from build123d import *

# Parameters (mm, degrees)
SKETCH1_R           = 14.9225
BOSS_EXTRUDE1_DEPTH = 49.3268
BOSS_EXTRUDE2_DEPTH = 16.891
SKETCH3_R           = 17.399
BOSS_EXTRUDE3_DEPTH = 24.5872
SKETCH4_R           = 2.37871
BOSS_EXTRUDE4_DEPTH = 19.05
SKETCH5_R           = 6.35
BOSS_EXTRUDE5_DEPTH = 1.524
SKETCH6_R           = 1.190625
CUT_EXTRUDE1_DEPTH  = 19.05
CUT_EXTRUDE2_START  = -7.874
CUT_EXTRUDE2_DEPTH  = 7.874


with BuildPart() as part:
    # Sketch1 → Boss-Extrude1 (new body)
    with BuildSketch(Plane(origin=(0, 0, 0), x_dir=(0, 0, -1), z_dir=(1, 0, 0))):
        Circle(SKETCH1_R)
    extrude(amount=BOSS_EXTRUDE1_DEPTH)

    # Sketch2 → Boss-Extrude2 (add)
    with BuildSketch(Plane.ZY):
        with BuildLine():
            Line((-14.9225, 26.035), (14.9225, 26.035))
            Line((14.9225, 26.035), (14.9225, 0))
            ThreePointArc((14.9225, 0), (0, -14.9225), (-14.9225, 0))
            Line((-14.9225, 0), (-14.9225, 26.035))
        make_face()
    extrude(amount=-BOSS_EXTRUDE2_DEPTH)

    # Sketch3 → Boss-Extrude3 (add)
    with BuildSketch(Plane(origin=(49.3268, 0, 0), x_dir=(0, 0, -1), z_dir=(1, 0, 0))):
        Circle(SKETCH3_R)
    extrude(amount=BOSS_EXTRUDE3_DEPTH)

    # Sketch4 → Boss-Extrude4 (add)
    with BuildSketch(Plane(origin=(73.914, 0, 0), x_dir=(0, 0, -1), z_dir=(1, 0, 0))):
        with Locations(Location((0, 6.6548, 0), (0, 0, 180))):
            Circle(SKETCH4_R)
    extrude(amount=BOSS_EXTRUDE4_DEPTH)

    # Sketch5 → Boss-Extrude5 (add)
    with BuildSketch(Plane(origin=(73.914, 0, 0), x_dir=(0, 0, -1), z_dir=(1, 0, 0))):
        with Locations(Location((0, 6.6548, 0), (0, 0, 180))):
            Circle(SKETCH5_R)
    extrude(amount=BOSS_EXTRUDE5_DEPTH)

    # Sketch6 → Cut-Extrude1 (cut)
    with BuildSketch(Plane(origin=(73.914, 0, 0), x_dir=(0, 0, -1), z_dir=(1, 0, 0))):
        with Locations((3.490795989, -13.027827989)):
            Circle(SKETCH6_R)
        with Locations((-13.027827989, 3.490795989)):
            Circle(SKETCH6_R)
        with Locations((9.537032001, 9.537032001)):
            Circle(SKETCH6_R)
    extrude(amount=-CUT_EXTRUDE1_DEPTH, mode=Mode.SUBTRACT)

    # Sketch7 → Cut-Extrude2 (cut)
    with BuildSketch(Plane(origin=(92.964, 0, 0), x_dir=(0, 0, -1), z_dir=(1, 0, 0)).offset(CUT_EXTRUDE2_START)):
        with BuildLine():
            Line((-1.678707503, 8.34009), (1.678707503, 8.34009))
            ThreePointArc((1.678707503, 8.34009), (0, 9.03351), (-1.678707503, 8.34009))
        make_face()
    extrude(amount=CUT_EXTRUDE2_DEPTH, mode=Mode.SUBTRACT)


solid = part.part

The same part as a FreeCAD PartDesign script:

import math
import FreeCAD as App
import Part
import Sketcher

V = App.Vector
Q = App.Units.Quantity

doc = App.newDocument("Part")
body = doc.addObject("PartDesign::Body", "Body")

# Sketch on YZ plane
sketch1 = body.newObject("Sketcher::SketchObject", "Sketch")
sketch1.AttachmentSupport = (doc.getObject("YZ_Plane"), [""])
sketch1.MapMode = "FlatFace"
sketch1.addGeometry(Part.Circle(V(0, 0, 0), V(0, 0, 1), 14.9225), False)
sketch1.addConstraint(Sketcher.Constraint("Coincident", 0, 3, -1, 1))
sketch1.addConstraint(Sketcher.Constraint("Diameter", 0, Q("1.175 in")))
pad1 = body.newObject("PartDesign::Pad", "Pad")
pad1.Profile = sketch1
pad1.Length = Q("1.942 in")

# Sketch on YZ plane
sketch2 = body.newObject("Sketcher::SketchObject", "Sketch001")
sketch2.AttachmentSupport = (doc.getObject("YZ_Plane"), [""])
sketch2.MapMode = "FlatFace"
sketch2.addGeometry(Part.LineSegment(V(26.035, 14.9225, 0), V(26.035, -14.9225, 0)), False)
sketch2.addGeometry(Part.LineSegment(V(26.035, -14.9225, 0), V(0, -14.9225, 0)), False)
sketch2.addGeometry(Part.ArcOfCircle(Part.Circle(V(0, 0, 0), V(0, 0, 1), 14.9225), math.radians(90), math.radians(270)), False)
sketch2.addGeometry(Part.LineSegment(V(0, 14.9225, 0), V(26.035, 14.9225, 0)), False)
sketch2.addConstraint(Sketcher.Constraint("Coincident", 0, 2, 1, 1))
sketch2.addConstraint(Sketcher.Constraint("Tangent", 1, 2, 2, 2))
sketch2.addConstraint(Sketcher.Constraint("Tangent", 2, 1, 3, 1))
sketch2.addConstraint(Sketcher.Constraint("Coincident", 3, 2, 0, 1))
sketch2.addConstraint(Sketcher.Constraint("Vertical", 0))
sketch2.addConstraint(Sketcher.Constraint("Horizontal", 1))
sketch2.addConstraint(Sketcher.Constraint("Horizontal", 3))
sketch2.addConstraint(Sketcher.Constraint("Coincident", 2, 3, -1, 1))
sketch2.addConstraint(Sketcher.Constraint("Radius", 2, Q("0.5875 in")))
sketch2.addConstraint(Sketcher.Constraint("DistanceX", 1, 2, 1, 1, Q("1.025 in")))
pad2 = body.newObject("PartDesign::Pad", "Pad001")
pad2.Profile = sketch2
pad2.Length = Q("0.665 in")

# Sketch on YZ plane
sketch3 = body.newObject("Sketcher::SketchObject", "Sketch002")
sketch3.AttachmentSupport = (doc.getObject("YZ_Plane"), [""])
sketch3.MapMode = "FlatFace"
sketch3.AttachmentOffset = App.Placement(V(0, 0, 1.942 * 25.4), App.Rotation())
sketch3.addGeometry(Part.Circle(V(0, 0, 0), V(0, 0, 1), 17.399), False)
sketch3.addConstraint(Sketcher.Constraint("Coincident", 0, 3, -1, 1))
sketch3.addConstraint(Sketcher.Constraint("Diameter", 0, Q("1.37 in")))
pad3 = body.newObject("PartDesign::Pad", "Pad002")
pad3.Profile = sketch3
pad3.Length = Q("0.968 in")

# Sketch on YZ plane
sketch4 = body.newObject("Sketcher::SketchObject", "Sketch003")
sketch4.AttachmentSupport = (doc.getObject("YZ_Plane"), [""])
sketch4.MapMode = "FlatFace"
sketch4.AttachmentOffset = App.Placement(V(0, 0, 2.91 * 25.4), App.Rotation())
sketch4.addGeometry(Part.Circle(V(6.6548, 0, 0), V(0, 0, 1), 2.37871), False)
sketch4.addConstraint(Sketcher.Constraint("PointOnObject", 0, 3, -1))
sketch4.addConstraint(Sketcher.Constraint("Diameter", 0, Q("0.1873 in")))
sketch4.addConstraint(Sketcher.Constraint("DistanceX", -1, 1, 0, 3, Q("0.262 in")))
pad4 = body.newObject("PartDesign::Pad", "Pad003")
pad4.Profile = sketch4
pad4.Length = Q("0.75 in")

# Sketch on YZ plane
sketch5 = body.newObject("Sketcher::SketchObject", "Sketch004")
sketch5.AttachmentSupport = (doc.getObject("YZ_Plane"), [""])
sketch5.MapMode = "FlatFace"
sketch5.AttachmentOffset = App.Placement(V(0, 0, 2.91 * 25.4), App.Rotation())
sketch5.addGeometry(Part.Circle(V(6.6548, 0, 0), V(0, 0, 1), 6.35), False)
sketch5.addConstraint(Sketcher.Constraint("PointOnObject", 0, 3, -1))
sketch5.addConstraint(Sketcher.Constraint("Diameter", 0, Q("0.5 in")))
sketch5.addConstraint(Sketcher.Constraint("DistanceX", -1, 1, 0, 3, Q("0.262 in")))
pad5 = body.newObject("PartDesign::Pad", "Pad004")
pad5.Profile = sketch5
pad5.Length = Q("0.06 in")

# Sketch on YZ plane
sketch6 = body.newObject("Sketcher::SketchObject", "Sketch005")
sketch6.AttachmentSupport = (doc.getObject("YZ_Plane"), [""])
sketch6.MapMode = "FlatFace"
sketch6.AttachmentOffset = App.Placement(V(0, 0, 2.91 * 25.4), App.Rotation())
sketch6.addGeometry(Part.Circle(V(-13.027828, -3.490796, 0), V(0, 0, 1), 1.190625), False)
sketch6.addGeometry(Part.Circle(V(3.490796, 13.027828, 0), V(0, 0, 1), 1.190625), False)
sketch6.addGeometry(Part.Circle(V(9.537032, -9.537032, 0), V(0, 0, 1), 1.190625), False)
sketch6.addConstraint(Sketcher.Constraint("Equal", 0, 1))
sketch6.addConstraint(Sketcher.Constraint("Equal", 1, 2))
sketch6.addConstraint(Sketcher.Constraint("Diameter", 0, Q("0.09375 in")))
sketch6.addConstraint(Sketcher.Constraint("DistanceX", 0, 3, 2, 3, 22.56486))
sketch6.addConstraint(Sketcher.Constraint("DistanceY", 2, 3, 1, 3, 22.56486))
sketch6.addConstraint(Sketcher.Constraint("DistanceX", 0, 3, -1, 1, 13.027828))
sketch6.addConstraint(Sketcher.Constraint("DistanceY", 0, 3, -1, 1, 3.490796))
sketch6.addConstraint(Sketcher.Constraint("DistanceX", -1, 1, 1, 3, 3.490796))
sketch6.addConstraint(Sketcher.Constraint("DistanceY", -1, 1, 1, 3, 13.027828))
pocket1 = body.newObject("PartDesign::Pocket", "Pocket")
pocket1.Profile = sketch6
pocket1.Length = Q("0.75 in")

# Sketch on YZ plane
sketch7 = body.newObject("Sketcher::SketchObject", "Sketch006")
sketch7.AttachmentSupport = (doc.getObject("YZ_Plane"), [""])
sketch7.MapMode = "FlatFace"
sketch7.AttachmentOffset = App.Placement(V(0, 0, 3.35 * 25.4), App.Rotation())
sketch7.addGeometry(Part.LineSegment(V(8.34009, 1.678708, 0), V(8.34009, -1.678708, 0)), False)
sketch7.addGeometry(Part.ArcOfCircle(Part.Circle(V(6.6548, 0, 0), V(0, 0, 1), 2.37871), math.radians(-44.887887), math.radians(44.887887)), False)
sketch7.addConstraint(Sketcher.Constraint("Coincident", 0, 1, 1, 2))
sketch7.addConstraint(Sketcher.Constraint("Coincident", 1, 1, 0, 2))
sketch7.addConstraint(Sketcher.Constraint("Vertical", 0))
sketch7.addConstraint(Sketcher.Constraint("PointOnObject", 1, 3, -1))
sketch7.addConstraint(Sketcher.Constraint("DistanceX", -1, 1, 1, 3, Q("0.262 in")))
sketch7.addConstraint(Sketcher.Constraint("Radius", 1, 2.37871))
sketch7.addConstraint(Sketcher.Constraint("DistanceY", 0, 2, 0, 1, 3.357415))
pocket2 = body.newObject("PartDesign::Pocket", "Pocket001")
pocket2.Profile = sketch7
pocket2.Length = Q("0.31 in")
pocket2.Reversed = True

doc.recompute()
